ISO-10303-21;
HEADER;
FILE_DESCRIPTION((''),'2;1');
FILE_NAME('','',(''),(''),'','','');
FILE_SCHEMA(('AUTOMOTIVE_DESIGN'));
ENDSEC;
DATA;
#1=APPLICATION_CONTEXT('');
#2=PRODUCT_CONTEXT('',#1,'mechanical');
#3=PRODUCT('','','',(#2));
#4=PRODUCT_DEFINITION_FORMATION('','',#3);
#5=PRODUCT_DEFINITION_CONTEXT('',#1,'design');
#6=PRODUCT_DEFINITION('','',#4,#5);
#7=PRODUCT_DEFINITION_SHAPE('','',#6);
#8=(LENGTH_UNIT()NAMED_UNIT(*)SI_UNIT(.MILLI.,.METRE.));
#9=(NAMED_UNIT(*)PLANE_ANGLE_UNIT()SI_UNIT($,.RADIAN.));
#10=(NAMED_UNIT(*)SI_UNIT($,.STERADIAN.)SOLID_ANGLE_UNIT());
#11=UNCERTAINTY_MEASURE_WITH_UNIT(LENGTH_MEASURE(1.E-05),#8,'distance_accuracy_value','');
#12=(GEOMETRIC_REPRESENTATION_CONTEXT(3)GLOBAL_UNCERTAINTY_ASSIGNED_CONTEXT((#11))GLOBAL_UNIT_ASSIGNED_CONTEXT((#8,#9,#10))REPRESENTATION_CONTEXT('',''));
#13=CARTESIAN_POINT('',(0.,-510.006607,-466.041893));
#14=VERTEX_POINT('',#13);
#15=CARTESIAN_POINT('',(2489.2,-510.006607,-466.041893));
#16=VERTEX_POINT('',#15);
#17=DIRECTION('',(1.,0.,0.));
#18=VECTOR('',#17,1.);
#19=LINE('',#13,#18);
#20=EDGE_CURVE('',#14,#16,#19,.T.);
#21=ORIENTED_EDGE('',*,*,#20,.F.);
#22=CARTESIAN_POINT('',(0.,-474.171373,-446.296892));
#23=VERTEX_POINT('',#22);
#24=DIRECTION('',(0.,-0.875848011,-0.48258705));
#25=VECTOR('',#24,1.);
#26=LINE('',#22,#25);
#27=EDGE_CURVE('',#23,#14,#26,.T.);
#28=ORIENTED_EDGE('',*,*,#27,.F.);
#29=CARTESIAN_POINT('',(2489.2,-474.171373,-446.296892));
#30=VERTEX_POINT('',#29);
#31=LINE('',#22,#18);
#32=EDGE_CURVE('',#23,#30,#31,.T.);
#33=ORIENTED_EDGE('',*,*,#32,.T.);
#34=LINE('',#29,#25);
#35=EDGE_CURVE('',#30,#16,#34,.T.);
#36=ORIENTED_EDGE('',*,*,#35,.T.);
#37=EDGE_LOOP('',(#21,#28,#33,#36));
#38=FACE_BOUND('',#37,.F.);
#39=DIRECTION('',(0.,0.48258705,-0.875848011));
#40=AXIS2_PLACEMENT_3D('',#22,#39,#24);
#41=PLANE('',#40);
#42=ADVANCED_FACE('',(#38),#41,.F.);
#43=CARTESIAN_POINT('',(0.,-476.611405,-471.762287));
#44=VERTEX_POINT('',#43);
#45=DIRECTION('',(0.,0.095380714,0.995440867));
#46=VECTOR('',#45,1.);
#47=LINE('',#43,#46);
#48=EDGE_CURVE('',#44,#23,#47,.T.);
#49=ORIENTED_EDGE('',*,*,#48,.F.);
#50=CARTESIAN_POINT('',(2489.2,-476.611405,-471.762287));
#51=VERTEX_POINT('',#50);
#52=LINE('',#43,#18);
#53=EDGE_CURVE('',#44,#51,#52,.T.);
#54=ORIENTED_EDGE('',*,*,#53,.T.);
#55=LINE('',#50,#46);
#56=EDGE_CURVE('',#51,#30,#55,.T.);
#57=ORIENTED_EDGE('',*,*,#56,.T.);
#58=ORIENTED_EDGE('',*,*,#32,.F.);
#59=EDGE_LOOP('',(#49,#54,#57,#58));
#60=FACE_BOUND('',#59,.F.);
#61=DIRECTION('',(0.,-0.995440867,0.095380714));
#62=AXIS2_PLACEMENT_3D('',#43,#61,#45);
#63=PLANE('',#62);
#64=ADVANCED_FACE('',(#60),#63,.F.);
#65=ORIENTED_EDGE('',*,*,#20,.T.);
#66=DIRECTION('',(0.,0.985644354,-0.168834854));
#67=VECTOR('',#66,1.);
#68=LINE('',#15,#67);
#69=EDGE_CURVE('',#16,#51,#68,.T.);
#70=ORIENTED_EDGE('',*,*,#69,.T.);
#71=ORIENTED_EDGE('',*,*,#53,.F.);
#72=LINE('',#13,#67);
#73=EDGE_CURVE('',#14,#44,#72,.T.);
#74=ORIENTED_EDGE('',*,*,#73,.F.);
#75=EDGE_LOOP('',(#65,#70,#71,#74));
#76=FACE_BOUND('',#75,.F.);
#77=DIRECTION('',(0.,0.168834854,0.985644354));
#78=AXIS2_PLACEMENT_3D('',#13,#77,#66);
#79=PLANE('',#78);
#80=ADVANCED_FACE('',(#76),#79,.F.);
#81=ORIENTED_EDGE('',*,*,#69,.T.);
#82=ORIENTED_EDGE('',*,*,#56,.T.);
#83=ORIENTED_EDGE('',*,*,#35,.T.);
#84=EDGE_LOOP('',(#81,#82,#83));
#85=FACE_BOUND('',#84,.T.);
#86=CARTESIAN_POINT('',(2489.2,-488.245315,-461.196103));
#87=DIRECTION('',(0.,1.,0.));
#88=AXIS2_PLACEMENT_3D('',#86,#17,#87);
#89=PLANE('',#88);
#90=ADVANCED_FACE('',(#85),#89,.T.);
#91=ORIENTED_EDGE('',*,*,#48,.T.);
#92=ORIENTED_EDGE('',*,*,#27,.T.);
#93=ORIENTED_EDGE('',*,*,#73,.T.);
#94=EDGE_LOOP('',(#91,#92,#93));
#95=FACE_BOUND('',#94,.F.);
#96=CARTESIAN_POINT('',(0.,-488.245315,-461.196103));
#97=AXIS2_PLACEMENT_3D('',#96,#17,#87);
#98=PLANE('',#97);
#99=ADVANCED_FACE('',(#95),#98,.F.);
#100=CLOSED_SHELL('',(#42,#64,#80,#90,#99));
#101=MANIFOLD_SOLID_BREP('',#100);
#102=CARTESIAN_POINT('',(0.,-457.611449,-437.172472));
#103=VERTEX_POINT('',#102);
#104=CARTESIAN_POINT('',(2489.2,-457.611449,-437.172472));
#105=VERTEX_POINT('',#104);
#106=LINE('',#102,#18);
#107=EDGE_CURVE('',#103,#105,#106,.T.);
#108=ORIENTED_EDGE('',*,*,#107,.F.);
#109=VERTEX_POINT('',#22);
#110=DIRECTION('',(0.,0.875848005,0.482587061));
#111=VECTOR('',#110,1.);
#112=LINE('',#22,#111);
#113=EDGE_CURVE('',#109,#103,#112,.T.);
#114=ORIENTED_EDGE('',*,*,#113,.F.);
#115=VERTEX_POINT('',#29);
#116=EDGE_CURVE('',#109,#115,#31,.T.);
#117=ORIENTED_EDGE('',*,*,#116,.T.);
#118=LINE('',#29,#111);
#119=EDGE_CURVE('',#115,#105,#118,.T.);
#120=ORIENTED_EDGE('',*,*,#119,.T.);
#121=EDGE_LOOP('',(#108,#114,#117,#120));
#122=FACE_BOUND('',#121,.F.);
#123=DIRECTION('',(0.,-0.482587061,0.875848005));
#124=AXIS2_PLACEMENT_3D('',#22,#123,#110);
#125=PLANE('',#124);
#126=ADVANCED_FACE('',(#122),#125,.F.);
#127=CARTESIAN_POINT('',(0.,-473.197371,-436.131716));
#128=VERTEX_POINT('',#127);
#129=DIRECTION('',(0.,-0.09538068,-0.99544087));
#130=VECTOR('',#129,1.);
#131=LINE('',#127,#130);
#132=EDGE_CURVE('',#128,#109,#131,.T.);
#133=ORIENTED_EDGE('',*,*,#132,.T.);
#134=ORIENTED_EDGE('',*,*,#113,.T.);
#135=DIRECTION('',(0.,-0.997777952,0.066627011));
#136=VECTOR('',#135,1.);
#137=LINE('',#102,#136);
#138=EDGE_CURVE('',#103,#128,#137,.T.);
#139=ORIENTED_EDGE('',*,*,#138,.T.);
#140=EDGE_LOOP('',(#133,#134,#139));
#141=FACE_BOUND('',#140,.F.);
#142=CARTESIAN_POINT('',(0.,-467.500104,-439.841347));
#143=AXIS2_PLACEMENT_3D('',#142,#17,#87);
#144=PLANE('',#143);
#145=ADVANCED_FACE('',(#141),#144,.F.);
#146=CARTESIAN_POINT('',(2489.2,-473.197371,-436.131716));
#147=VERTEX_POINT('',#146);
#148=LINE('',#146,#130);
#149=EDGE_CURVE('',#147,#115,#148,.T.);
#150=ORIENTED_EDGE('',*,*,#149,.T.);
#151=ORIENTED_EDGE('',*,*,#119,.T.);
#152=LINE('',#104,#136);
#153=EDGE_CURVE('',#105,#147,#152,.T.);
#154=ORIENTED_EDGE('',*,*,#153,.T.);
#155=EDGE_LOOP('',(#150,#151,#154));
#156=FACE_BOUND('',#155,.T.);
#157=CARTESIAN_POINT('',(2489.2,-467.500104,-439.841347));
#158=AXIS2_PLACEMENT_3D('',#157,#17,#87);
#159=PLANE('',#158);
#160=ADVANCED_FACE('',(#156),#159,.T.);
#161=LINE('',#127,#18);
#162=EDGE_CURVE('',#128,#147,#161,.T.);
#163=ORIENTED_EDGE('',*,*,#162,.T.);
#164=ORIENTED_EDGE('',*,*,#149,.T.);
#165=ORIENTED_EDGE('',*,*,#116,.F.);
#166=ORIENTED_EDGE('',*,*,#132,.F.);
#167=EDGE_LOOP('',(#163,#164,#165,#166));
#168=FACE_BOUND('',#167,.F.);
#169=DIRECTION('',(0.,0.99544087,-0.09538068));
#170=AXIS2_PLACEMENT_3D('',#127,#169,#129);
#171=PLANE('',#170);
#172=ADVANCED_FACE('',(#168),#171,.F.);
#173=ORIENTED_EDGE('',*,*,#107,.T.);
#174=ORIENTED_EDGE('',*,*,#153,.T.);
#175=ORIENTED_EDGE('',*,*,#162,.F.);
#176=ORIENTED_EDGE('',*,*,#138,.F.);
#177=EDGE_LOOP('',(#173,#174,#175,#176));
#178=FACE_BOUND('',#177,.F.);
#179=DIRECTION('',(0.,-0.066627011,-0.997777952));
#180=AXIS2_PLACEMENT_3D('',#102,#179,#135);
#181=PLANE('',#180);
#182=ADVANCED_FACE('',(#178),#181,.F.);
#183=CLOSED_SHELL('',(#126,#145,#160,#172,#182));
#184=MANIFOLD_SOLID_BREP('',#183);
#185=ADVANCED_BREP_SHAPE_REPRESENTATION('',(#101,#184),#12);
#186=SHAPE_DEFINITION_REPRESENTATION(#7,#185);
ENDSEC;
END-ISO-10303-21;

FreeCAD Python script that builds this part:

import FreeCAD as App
import Part
import Sketcher

V = App.Vector
Q = App.Units.Quantity

doc = App.newDocument("Part")
body = doc.addObject("PartDesign::Body", "Body")
body.AllowCompound = True

# Sketch on YZ plane
sketch1 = body.newObject("Sketcher::SketchObject", "Sketch")
sketch1.AttachmentSupport = (doc.getObject("YZ_Plane"), [""])
sketch1.MapMode = "FlatFace"
sketch1.addGeometry([
    Part.LineSegment(V(-477, -472, 0), V(-474, -446, 0)),  # 0
    Part.LineSegment(V(-474, -446, 0), V(-510, -466, 0)),  # 1
    Part.LineSegment(V(-510, -466, 0), V(-477, -472, 0)),  # 2
    Part.LineSegment(V(-458, -437, 0), V(-473, -436, 0)),  # 3
    Part.LineSegment(V(-473, -436, 0), V(-474, -446, 0)),  # 4
    Part.LineSegment(V(-474, -446, 0), V(-458, -437, 0)),  # 5
], False)
sketch1.addConstraint([
    Sketcher.Constraint("Coincident", 0, 2, 1, 1),
    Sketcher.Constraint("Coincident", 1, 2, 2, 1),
    Sketcher.Constraint("Coincident", 2, 2, 0, 1),
    Sketcher.Constraint("Coincident", 3, 2, 4, 1),
    Sketcher.Constraint("Coincident", 4, 2, 5, 1),
    Sketcher.Constraint("Coincident", 5, 2, 3, 1),
    Sketcher.Constraint("Coincident", 4, 2, 0, 2),
    Sketcher.Constraint("Parallel", 0, 4),
    Sketcher.Constraint("Parallel", 1, 5),
    Sketcher.Constraint("Distance", 1, Q("40.9149 mm")),
    Sketcher.Constraint("DistanceY", 1, 2, 0, 2, Q("19.745001 mm")),
    Sketcher.Constraint("DistanceX", 1, 2, 2, 2, Q("33.395202 mm")),
    Sketcher.Constraint("Distance", 3, Q("15.620632 mm")),
    Sketcher.Constraint("DistanceY", 0, 2, -1, 1, Q("446.296892 mm")),
    Sketcher.Constraint("DistanceX", 3, 2, -1, 1, Q("473.197371 mm")),
    Sketcher.Constraint("DistanceX", 5, 2, -1, 1, Q("457.611449 mm")),
    Sketcher.Constraint("DistanceY", 2, 2, 3, 2, Q("35.630571 mm")),
])
pad1 = body.newObject("PartDesign::Pad", "Pad")
pad1.Profile = sketch1
pad1.Length = Q("98 in")

doc.recompute()
